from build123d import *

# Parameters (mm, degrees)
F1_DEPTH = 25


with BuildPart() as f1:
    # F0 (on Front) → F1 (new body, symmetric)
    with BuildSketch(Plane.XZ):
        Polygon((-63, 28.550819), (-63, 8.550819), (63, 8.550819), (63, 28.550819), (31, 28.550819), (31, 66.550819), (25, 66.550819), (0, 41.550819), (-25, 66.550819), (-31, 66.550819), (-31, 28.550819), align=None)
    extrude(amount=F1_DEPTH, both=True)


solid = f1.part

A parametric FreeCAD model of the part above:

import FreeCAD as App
import Part
import Sketcher
from FreeCAD import Vector

doc = App.newDocument("Part")
params = doc.addObject("Spreadsheet::Sheet", "Params")
for row, (alias, value) in enumerate([
    ("sketch1_width", "126 mm"),
    ("sketch1_width2", "32 mm"),
    ("sketch1_width3", "6 mm"),
    ("sketch1_height", "20 mm"),
    ("sketch1_height2", "38 mm"),
    ("pad1_length", "50 mm"),
], start=1):
    params.set(f"A{row}", alias)
    params.set(f"B{row}", "=" + value)
    params.setAlias(f"B{row}", alias)

body = doc.addObject("PartDesign::Body", "Body")

# Sketch on XZ plane
sketch1 = body.newObject("Sketcher::SketchObject", "Sketch")
sketch1.AttachmentSupport = (doc.getObject("XZ_Plane"), [""])
sketch1.MapMode = "FlatFace"
sketch1.addGeometry([
    Part.LineSegment(Vector(-63, 28.550819, 0), Vector(-63, 8.550819, 0)),  # 0
    Part.LineSegment(Vector(-63, 8.550819, 0), Vector(63, 8.550819, 0)),  # 1
    Part.LineSegment(Vector(63, 8.550819, 0), Vector(63, 28.550819, 0)),  # 2
    Part.LineSegment(Vector(63, 28.550819, 0), Vector(31, 28.550819, 0)),  # 3
    Part.LineSegment(Vector(31, 28.550819, 0), Vector(31, 66.550819, 0)),  # 4
    Part.LineSegment(Vector(31, 66.550819, 0), Vector(25, 66.550819, 0)),  # 5
    Part.LineSegment(Vector(25, 66.550819, 0), Vector(0, 41.550819, 0)),  # 6
    Part.LineSegment(Vector(0, 41.550819, 0), Vector(-25, 66.550819, 0)),  # 7
    Part.LineSegment(Vector(-25, 66.550819, 0), Vector(-31, 66.550819, 0)),  # 8
    Part.LineSegment(Vector(-31, 66.550819, 0), Vector(-31, 28.550819, 0)),  # 9
    Part.LineSegment(Vector(-31, 28.550819, 0), Vector(-63, 28.550819, 0)),  # 10
], False)
sketch1.addConstraint([
    Sketcher.Constraint("Coincident", 0, 2, 1, 1),
    Sketcher.Constraint("Coincident", 1, 2, 2, 1),
    Sketcher.Constraint("Coincident", 2, 2, 3, 1),
    Sketcher.Constraint("Coincident", 3, 2, 4, 1),
    Sketcher.Constraint("Coincident", 4, 2, 5, 1),
    Sketcher.Constraint("Coincident", 5, 2, 6, 1),
    Sketcher.Constraint("Coincident", 6, 2, 7, 1),
    Sketcher.Constraint("Coincident", 7, 2, 8, 1),
    Sketcher.Constraint("Coincident", 8, 2, 9, 1),
    Sketcher.Constraint("Coincident", 9, 2, 10, 1),
    Sketcher.Constraint("Coincident", 10, 2, 0, 1),
    Sketcher.Constraint("Vertical", 0),
    Sketcher.Constraint("Horizontal", 1),
    Sketcher.Constraint("Vertical", 2),
    Sketcher.Constraint("Horizontal", 3),
    Sketcher.Constraint("Vertical", 4),
    Sketcher.Constraint("Horizontal", 5),
    Sketcher.Constraint("Horizontal", 8),
    Sketcher.Constraint("Vertical", 9),
    Sketcher.Constraint("Horizontal", 10),
    Sketcher.Constraint("Symmetric", 5, 2, 7, 2, -2),
    Sketcher.Constraint("Symmetric", 3, 2, 9, 2, -2),
    Sketcher.Constraint("PointOnObject", 6, 2, -2),
    Sketcher.Constraint("Perpendicular", 6, 7),
    Sketcher.Constraint("Equal", 3, 10),
    Sketcher.Constraint("DistanceX", 1, 1, 1, 2, 126.0),
    Sketcher.Constraint("DistanceX", 3, 2, 3, 1, 32.0),
    Sketcher.Constraint("DistanceX", 5, 2, 5, 1, 6.0),
    Sketcher.Constraint("DistanceY", 0, 2, 0, 1, 20.0),
    Sketcher.Constraint("DistanceY", 4, 1, 4, 2, 38.0),
    Sketcher.Constraint("DistanceY", -1, 1, 0, 2, 8.550819),
])
sketch1.setExpression("Constraints[25]", "Params.sketch1_width")
sketch1.setExpression("Constraints[26]", "Params.sketch1_width2")
sketch1.setExpression("Constraints[27]", "Params.sketch1_width3")
sketch1.setExpression("Constraints[28]", "Params.sketch1_height")
sketch1.setExpression("Constraints[29]", "Params.sketch1_height2")
pad1 = body.newObject("PartDesign::Pad", "Pad")
pad1.Profile = sketch1
pad1.setExpression("Length", "Params.pad1_length")
pad1.Midplane = True

doc.recompute()
